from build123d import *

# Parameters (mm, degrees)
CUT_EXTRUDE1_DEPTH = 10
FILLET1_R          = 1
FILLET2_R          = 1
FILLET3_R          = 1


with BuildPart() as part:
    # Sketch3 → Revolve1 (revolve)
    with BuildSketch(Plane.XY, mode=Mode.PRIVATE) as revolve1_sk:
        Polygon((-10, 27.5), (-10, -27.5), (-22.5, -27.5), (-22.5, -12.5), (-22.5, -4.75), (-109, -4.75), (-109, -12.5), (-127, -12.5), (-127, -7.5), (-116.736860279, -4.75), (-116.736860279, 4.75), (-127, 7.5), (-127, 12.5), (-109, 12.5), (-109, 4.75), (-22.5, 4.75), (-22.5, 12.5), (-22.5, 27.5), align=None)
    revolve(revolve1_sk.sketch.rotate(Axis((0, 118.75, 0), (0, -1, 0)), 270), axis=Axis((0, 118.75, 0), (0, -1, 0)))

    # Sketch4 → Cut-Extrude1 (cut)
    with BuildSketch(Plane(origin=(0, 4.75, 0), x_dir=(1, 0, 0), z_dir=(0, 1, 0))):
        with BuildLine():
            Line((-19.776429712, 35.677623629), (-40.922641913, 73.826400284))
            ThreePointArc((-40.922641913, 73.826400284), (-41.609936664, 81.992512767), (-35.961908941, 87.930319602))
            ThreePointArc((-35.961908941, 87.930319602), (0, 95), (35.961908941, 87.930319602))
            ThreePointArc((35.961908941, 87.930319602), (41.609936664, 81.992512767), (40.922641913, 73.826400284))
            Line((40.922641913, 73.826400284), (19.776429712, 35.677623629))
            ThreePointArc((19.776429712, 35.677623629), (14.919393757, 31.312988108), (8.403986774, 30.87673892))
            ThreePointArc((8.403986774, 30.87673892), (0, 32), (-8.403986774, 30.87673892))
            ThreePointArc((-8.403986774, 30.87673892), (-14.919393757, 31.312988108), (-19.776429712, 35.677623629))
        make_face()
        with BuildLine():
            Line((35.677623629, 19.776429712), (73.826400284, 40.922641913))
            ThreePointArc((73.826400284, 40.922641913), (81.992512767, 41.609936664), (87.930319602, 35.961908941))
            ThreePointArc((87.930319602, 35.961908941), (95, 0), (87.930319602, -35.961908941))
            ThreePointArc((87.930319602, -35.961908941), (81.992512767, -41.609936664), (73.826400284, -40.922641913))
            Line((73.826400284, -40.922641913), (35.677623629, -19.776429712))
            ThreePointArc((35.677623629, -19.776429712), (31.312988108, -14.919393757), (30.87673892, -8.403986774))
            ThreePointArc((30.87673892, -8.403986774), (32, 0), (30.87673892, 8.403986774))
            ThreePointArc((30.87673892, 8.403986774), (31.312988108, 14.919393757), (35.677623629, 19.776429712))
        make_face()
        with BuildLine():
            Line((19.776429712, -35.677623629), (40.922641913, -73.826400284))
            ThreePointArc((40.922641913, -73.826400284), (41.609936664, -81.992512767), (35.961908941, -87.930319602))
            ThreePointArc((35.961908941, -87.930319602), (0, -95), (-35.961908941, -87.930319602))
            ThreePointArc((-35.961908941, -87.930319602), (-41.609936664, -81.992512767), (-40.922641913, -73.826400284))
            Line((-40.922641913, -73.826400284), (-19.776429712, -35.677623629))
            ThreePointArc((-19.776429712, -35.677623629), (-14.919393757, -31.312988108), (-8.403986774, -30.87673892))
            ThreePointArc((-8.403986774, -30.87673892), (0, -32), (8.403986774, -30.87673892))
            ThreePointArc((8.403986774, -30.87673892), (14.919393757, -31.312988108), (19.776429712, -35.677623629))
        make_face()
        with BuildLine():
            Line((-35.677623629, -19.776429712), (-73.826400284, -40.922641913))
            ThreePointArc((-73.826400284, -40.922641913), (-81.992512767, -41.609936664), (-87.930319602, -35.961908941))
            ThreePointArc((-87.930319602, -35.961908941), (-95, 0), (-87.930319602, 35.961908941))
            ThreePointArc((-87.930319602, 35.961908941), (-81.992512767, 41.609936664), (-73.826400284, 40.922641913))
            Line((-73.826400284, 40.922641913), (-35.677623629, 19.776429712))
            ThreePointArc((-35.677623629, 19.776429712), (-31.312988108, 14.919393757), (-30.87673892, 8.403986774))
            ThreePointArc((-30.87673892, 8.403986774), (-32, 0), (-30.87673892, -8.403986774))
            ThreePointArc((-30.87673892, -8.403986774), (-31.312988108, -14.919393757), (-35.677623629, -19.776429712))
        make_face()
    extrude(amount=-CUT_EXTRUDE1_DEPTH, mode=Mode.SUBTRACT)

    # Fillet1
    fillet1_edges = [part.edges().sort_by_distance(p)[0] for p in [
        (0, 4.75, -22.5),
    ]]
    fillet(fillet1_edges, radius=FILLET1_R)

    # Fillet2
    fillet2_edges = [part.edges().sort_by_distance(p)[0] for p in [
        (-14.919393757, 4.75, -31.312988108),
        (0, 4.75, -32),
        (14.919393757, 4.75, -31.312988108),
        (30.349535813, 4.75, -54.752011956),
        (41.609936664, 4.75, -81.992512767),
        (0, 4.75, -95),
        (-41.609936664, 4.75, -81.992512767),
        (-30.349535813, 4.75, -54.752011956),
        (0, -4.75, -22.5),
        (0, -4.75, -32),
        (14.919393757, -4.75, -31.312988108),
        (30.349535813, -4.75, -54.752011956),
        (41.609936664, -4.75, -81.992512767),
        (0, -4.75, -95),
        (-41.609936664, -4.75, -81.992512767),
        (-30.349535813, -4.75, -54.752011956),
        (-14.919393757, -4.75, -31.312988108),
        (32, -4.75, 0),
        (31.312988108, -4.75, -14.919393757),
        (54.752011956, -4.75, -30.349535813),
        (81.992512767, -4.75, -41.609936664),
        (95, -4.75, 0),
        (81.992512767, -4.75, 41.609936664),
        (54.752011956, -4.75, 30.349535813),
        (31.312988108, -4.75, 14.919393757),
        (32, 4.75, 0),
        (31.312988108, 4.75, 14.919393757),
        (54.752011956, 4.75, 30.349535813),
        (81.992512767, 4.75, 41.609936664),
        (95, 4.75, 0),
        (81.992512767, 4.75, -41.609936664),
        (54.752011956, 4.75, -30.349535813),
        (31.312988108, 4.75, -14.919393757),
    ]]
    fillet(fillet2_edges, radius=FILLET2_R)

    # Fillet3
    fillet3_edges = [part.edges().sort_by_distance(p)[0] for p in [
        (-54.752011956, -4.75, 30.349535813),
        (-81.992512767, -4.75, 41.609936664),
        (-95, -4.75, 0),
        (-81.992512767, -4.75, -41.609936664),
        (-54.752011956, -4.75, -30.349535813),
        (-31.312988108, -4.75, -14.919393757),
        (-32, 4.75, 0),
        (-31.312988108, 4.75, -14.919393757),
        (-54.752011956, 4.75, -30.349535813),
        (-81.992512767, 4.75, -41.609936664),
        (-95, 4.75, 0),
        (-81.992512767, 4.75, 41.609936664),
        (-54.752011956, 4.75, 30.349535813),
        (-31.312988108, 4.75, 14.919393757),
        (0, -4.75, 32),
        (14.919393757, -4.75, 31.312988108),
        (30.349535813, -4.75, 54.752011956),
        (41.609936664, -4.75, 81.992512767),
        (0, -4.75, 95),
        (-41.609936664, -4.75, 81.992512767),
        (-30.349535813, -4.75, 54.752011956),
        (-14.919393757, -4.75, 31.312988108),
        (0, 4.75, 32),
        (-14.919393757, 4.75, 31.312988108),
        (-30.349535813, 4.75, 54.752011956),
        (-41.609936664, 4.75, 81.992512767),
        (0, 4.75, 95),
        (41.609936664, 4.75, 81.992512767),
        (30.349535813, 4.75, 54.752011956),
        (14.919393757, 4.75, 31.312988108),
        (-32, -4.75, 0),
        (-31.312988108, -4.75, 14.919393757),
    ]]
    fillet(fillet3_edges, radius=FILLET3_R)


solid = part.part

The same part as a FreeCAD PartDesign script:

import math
import FreeCAD as App
import Part
import Sketcher
from FreeCAD import Vector
Q = App.Units.Quantity


def edges_at(feature, points):
    """Names of the edges that pass closest to the given points."""
    edges = feature.Shape.Edges
    near = lambda p: min(range(len(edges)), key=lambda i: edges[i].distToShape(Part.Vertex(*p))[0])
    return sorted({f"Edge{near(p) + 1}" for p in points})


def add_polygon(sketch, points):
    """Adds a closed chain of lines whose ends are joined by coincident constraints."""
    first, n = sketch.GeometryCount, len(points)
    for a, b in zip(points, points[1:] + points[:1]):
        sketch.addGeometry(Part.LineSegment(App.Vector(*a, 0), App.Vector(*b, 0)), False)
    for i in range(n):
        sketch.addConstraint(Sketcher.Constraint("Coincident", first + i, 2, first + (i + 1) % n, 1))

doc = App.newDocument("Part")
params = doc.addObject("Spreadsheet::Sheet", "Params")
for row, (alias, value) in enumerate([
    ("sketch1_width", "18 mm"),
    ("sketch1_height", "55 mm"),
    ("sketch1_height2", "5 mm"),
    ("sketch1_width2", "12.5 mm"),
    ("sketch1_width3", "86.5 mm"),
    ("revolution_angle", "360 deg"),
    ("sketch2_radius", "10 mm"),
    ("sketch2_radius2", "32 mm"),
    ("sketch2_radius3", "95 mm"),
    ("pocket1_length", "10 mm"),
    ("fillet_radius", "1 mm"),
    ("fillet2_radius", "1 mm"),
    ("fillet3_radius", "1 mm"),
], start=1):
    params.set(f"A{row}", alias)
    params.set(f"B{row}", "=" + value)
    params.setAlias(f"B{row}", alias)

body = doc.addObject("PartDesign::Body", "Body")

sketch1 = doc.addObject("Sketcher::SketchObject", "Sketch")
body.addObject(sketch1)
sketch1.AttachmentSupport = (doc.XY_Plane, [""])
sketch1.MapMode = "FlatFace"
add_polygon(sketch1, [(-10, -27.5), (-10, 27.5), (-22.5, 27.5), (-22.5, 4.75), (-109, 4.75), (-109, 12.5), (-127, 12.5), (-127, 7.5), (-116.73686, 4.75), (-116.73686, -4.75), (-127, -7.5), (-127, -12.5), (-109, -12.5), (-109, -4.75), (-22.5, -4.75), (-22.5, -27.5)])
sketch1.addConstraint(Sketcher.Constraint("Vertical", 0))
sketch1.addConstraint(Sketcher.Constraint("Horizontal", 1))
sketch1.addConstraint(Sketcher.Constraint("Vertical", 2))
sketch1.addConstraint(Sketcher.Constraint("Horizontal", 3))
sketch1.addConstraint(Sketcher.Constraint("Vertical", 4))
sketch1.addConstraint(Sketcher.Constraint("Horizontal", 5))
sketch1.addConstraint(Sketcher.Constraint("Vertical", 6))
sketch1.addConstraint(Sketcher.Constraint("Vertical", 8))
sketch1.addConstraint(Sketcher.Constraint("Vertical", 10))
sketch1.addConstraint(Sketcher.Constraint("Horizontal", 11))
sketch1.addConstraint(Sketcher.Constraint("Vertical", 12))
sketch1.addConstraint(Sketcher.Constraint("Horizontal", 13))
sketch1.addConstraint(Sketcher.Constraint("Vertical", 14))
sketch1.addConstraint(Sketcher.Constraint("Horizontal", 15))
sketch1.addConstraint(Sketcher.Constraint("Symmetric", 6, 2, 9, 2, -1))
sketch1.addConstraint(Sketcher.Constraint("Symmetric", 4, 2, 11, 2, -1))
sketch1.addConstraint(Sketcher.Constraint("Symmetric", 2, 2, 13, 2, -1))
sketch1.addConstraint(Sketcher.Constraint("Horizontal", 3, 2, 7, 2))
sketch1.addConstraint(Sketcher.Constraint("Horizontal", 8, 2, 12, 2))
sketch1.addConstraint(Sketcher.Constraint("Equal", 2, 14))
sketch1.addConstraint(Sketcher.Constraint("DistanceX", 5, 2, 5, 1, Q("18 mm")))
sketch1.addConstraint(Sketcher.Constraint("DistanceY", 0, 1, 0, 2, Q("55 mm")))
sketch1.addConstraint(Sketcher.Constraint("DistanceY", 6, 2, 6, 1, Q("5 mm")))
sketch1.addConstraint(Sketcher.Constraint("Angle", 7, Q("-15 deg")))
sketch1.addConstraint(Sketcher.Constraint("DistanceX", 1, 2, 1, 1, Q("12.5 mm")))
sketch1.addConstraint(Sketcher.Constraint("DistanceX", 3, 2, 3, 1, Q("86.5 mm")))
sketch1.addConstraint(Sketcher.Constraint("DistanceY", 8, 2, 8, 1, Q("9.5 mm")))
sketch1.addConstraint(Sketcher.Constraint("DistanceX", 0, 2, -1, 1, Q("10 mm")))
sketch1.addConstraint(Sketcher.Constraint("DistanceY", 4, 2, 1, 2, Q("15 mm")))
sketch1.setExpression("Constraints[36]", "Params.sketch1_width")
sketch1.setExpression("Constraints[37]", "Params.sketch1_height")
sketch1.setExpression("Constraints[38]", "Params.sketch1_height2")
sketch1.setExpression("Constraints[40]", "Params.sketch1_width2")
sketch1.setExpression("Constraints[41]", "Params.sketch1_width3")
revolution = doc.addObject("PartDesign::Revolution", "Revolution")
body.addObject(revolution)
revolution.Profile = sketch1
revolution.ReferenceAxis = (sketch1, ["V_Axis"])
revolution.setExpression("Angle", "Params.revolution_angle")

sketch2 = doc.addObject("Sketcher::SketchObject", "Sketch001")
body.addObject(sketch2)
sketch2.AttachmentSupport = (doc.XZ_Plane, [""])
sketch2.MapMode = "FlatFace"
sketch2.AttachmentOffset = App.Placement(Vector(0, 0, -4.75), App.Rotation())
sketch2.addGeometry(Part.LineSegment(Vector(-40.922642, -73.8264, 0), Vector(-19.77643, -35.677624, 0)), False)
sketch2.addGeometry(Part.ArcOfCircle(Part.Circle(Vector(-11.030233, -40.52572, 0), Vector(0, 0, 1), 10), math.radians(74.774147), math.radians(151)), False)
sketch2.addGeometry(Part.ArcOfCircle(Part.Circle(Vector(0, 0, 0), Vector(0, 0, 1), 32), math.radians(-105.225853), math.radians(-74.774147)), False)
sketch2.addGeometry(Part.ArcOfCircle(Part.Circle(Vector(11.030233, -40.52572, 0), Vector(0, 0, 1), 10), math.radians(29), math.radians(105.225853)), False)
sketch2.addGeometry(Part.LineSegment(Vector(19.77643, -35.677624, 0), Vector(40.922642, -73.8264, 0)), False)
sketch2.addGeometry(Part.ArcOfCircle(Part.Circle(Vector(32.176445, -78.674496, 0), Vector(0, 0, 1), 10), math.radians(-67.756327), math.radians(29)), False)
sketch2.addGeometry(Part.ArcOfCircle(Part.Circle(Vector(0, 0, 0), Vector(0, 0, 1), 95), math.radians(-112.243673), math.radians(-67.756327)), False)
sketch2.addGeometry(Part.ArcOfCircle(Part.Circle(Vector(-32.176445, -78.674496, 0), Vector(0, 0, 1), 10), math.radians(151), math.radians(247.756327)), False)
sketch2.addGeometry(Part.LineSegment(Vector(73.8264, -40.922642, 0), Vector(35.677624, -19.77643, 0)), False)
sketch2.addGeometry(Part.ArcOfCircle(Part.Circle(Vector(40.52572, -11.030233, 0), Vector(0, 0, 1), 10), math.radians(164.774147), math.radians(241)), False)
sketch2.addGeometry(Part.ArcOfCircle(Part.Circle(Vector(0, 0, 0), Vector(0, 0, 1), 32), math.radians(-15.225853), math.radians(15.225853)), False)
sketch2.addGeometry(Part.ArcOfCircle(Part.Circle(Vector(40.52572, 11.030233, 0), Vector(0, 0, 1), 10), math.radians(119), math.radians(195.225853)), False)
sketch2.addGeometry(Part.LineSegment(Vector(35.677624, 19.77643, 0), Vector(73.8264, 40.922642, 0)), False)
sketch2.addGeometry(Part.ArcOfCircle(Part.Circle(Vector(78.674496, 32.176445, 0), Vector(0, 0, 1), 10), math.radians(22.243673), math.radians(119)), False)
sketch2.addGeometry(Part.ArcOfCircle(Part.Circle(Vector(0, 0, 0), Vector(0, 0, 1), 95), math.radians(-22.243673), math.radians(22.243673)), False)
sketch2.addGeometry(Part.ArcOfCircle(Part.Circle(Vector(78.674496, -32.176445, 0), Vector(0, 0, 1), 10), math.radians(-119), math.radians(-22.243673)), False)
sketch2.addGeometry(Part.LineSegment(Vector(40.922642, 73.8264, 0), Vector(19.77643, 35.677624, 0)), False)
sketch2.addGeometry(Part.ArcOfCircle(Part.Circle(Vector(11.030233, 40.52572, 0), Vector(0, 0, 1), 10), math.radians(-105.225853), math.radians(-29)), False)
sketch2.addGeometry(Part.ArcOfCircle(Part.Circle(Vector(0, 0, 0), Vector(0, 0, 1), 32), math.radians(74.774147), math.radians(105.225853)), False)
sketch2.addGeometry(Part.ArcOfCircle(Part.Circle(Vector(-11.030233, 40.52572, 0), Vector(0, 0, 1), 10), math.radians(-151), math.radians(-74.774147)), False)
sketch2.addGeometry(Part.LineSegment(Vector(-19.77643, 35.677624, 0), Vector(-40.922642, 73.8264, 0)), False)
sketch2.addGeometry(Part.ArcOfCircle(Part.Circle(Vector(-32.176445, 78.674496, 0), Vector(0, 0, 1), 10), math.radians(112.243673), math.radians(209)), False)
sketch2.addGeometry(Part.ArcOfCircle(Part.Circle(Vector(0, 0, 0), Vector(0, 0, 1), 95), math.radians(67.756327), math.radians(112.243673)), False)
sketch2.addGeometry(Part.ArcOfCircle(Part.Circle(Vector(32.176445, 78.674496, 0), Vector(0, 0, 1), 10), math.radians(-29), math.radians(67.756327)), False)
sketch2.addGeometry(Part.LineSegment(Vector(-73.8264, 40.922642, 0), Vector(-35.677624, 19.77643, 0)), False)
sketch2.addGeometry(Part.ArcOfCircle(Part.Circle(Vector(-40.52572, 11.030233, 0), Vector(0, 0, 1), 10), math.radians(-15.225853), math.radians(61)), False)
sketch2.addGeometry(Part.ArcOfCircle(Part.Circle(Vector(0, 0, 0), Vector(0, 0, 1), 32), math.radians(164.774147), math.radians(195.225853)), False)
sketch2.addGeometry(Part.ArcOfCircle(Part.Circle(Vector(-40.52572, -11.030233, 0), Vector(0, 0, 1), 10), math.radians(-61), math.radians(15.225853)), False)
sketch2.addGeometry(Part.LineSegment(Vector(-35.677624, -19.77643, 0), Vector(-73.8264, -40.922642, 0)), False)
sketch2.addGeometry(Part.ArcOfCircle(Part.Circle(Vector(-78.674496, -32.176445, 0), Vector(0, 0, 1), 10), math.radians(-157.756327), math.radians(-61)), False)
sketch2.addGeometry(Part.ArcOfCircle(Part.Circle(Vector(0, 0, 0), Vector(0, 0, 1), 95), math.radians(157.756327), math.radians(202.243673)), False)
sketch2.addGeometry(Part.ArcOfCircle(Part.Circle(Vector(-78.674496, 32.176445, 0), Vector(0, 0, 1), 10), math.radians(61), math.radians(157.756327)), False)
sketch2.addConstraint(Sketcher.Constraint("Tangent", 0, 2, 1, 2))
sketch2.addConstraint(Sketcher.Constraint("Tangent", 1, 1, 2, 1))
sketch2.addConstraint(Sketcher.Constraint("Tangent", 2, 2, 3, 2))
sketch2.addConstraint(Sketcher.Constraint("Tangent", 3, 1, 4, 1))
sketch2.addConstraint(Sketcher.Constraint("Tangent", 4, 2, 5, 2))
sketch2.addConstraint(Sketcher.Constraint("Tangent", 5, 1, 6, 2))
sketch2.addConstraint(Sketcher.Constraint("Tangent", 6, 1, 7, 2))
sketch2.addConstraint(Sketcher.Constraint("Tangent", 7, 1, 0, 1))
sketch2.addConstraint(Sketcher.Constraint("Tangent", 8, 2, 9, 2))
sketch2.addConstraint(Sketcher.Constraint("Tangent", 9, 1, 10, 1))
sketch2.addConstraint(Sketcher.Constraint("Tangent", 10, 2, 11, 2))
sketch2.addConstraint(Sketcher.Constraint("Tangent", 11, 1, 12, 1))
sketch2.addConstraint(Sketcher.Constraint("Tangent", 12, 2, 13, 2))
sketch2.addConstraint(Sketcher.Constraint("Tangent", 13, 1, 14, 2))
sketch2.addConstraint(Sketcher.Constraint("Tangent", 14, 1, 15, 2))
sketch2.addConstraint(Sketcher.Constraint("Tangent", 15, 1, 8, 1))
sketch2.addConstraint(Sketcher.Constraint("Tangent", 16, 2, 17, 2))
sketch2.addConstraint(Sketcher.Constraint("Tangent", 17, 1, 18, 1))
sketch2.addConstraint(Sketcher.Constraint("Tangent", 18, 2, 19, 2))
sketch2.addConstraint(Sketcher.Constraint("Tangent", 19, 1, 20, 1))
sketch2.addConstraint(Sketcher.Constraint("Tangent", 20, 2, 21, 2))
sketch2.addConstraint(Sketcher.Constraint("Tangent", 21, 1, 22, 2))
sketch2.addConstraint(Sketcher.Constraint("Tangent", 22, 1, 23, 2))
sketch2.addConstraint(Sketcher.Constraint("Tangent", 23, 1, 16, 1))
sketch2.addConstraint(Sketcher.Constraint("Tangent", 24, 2, 25, 2))
sketch2.addConstraint(Sketcher.Constraint("Tangent", 25, 1, 26, 1))
sketch2.addConstraint(Sketcher.Constraint("Tangent", 26, 2, 27, 2))
sketch2.addConstraint(Sketcher.Constraint("Tangent", 27, 1, 28, 1))
sketch2.addConstraint(Sketcher.Constraint("Tangent", 28, 2, 29, 2))
sketch2.addConstraint(Sketcher.Constraint("Tangent", 29, 1, 30, 2))
sketch2.addConstraint(Sketcher.Constraint("Tangent", 30, 1, 31, 2))
sketch2.addConstraint(Sketcher.Constraint("Tangent", 31, 1, 24, 1))
sketch2.addConstraint(Sketcher.Constraint("Coincident", 2, 3, -1, 1))
sketch2.addConstraint(Sketcher.Constraint("Coincident", 6, 3, -1, 1))
sketch2.addConstraint(Sketcher.Constraint("Coincident", 10, 3, -1, 1))
sketch2.addConstraint(Sketcher.Constraint("Coincident", 14, 3, -1, 1))
sketch2.addConstraint(Sketcher.Constraint("Coincident", 18, 3, -1, 1))
sketch2.addConstraint(Sketcher.Constraint("Coincident", 22, 3, -1, 1))
sketch2.addConstraint(Sketcher.Constraint("Coincident", 26, 3, -1, 1))
sketch2.addConstraint(Sketcher.Constraint("Coincident", 30, 3, -1, 1))
sketch2.addConstraint(Sketcher.Constraint("Equal", 1, 3))
sketch2.addConstraint(Sketcher.Constraint("Equal", 3, 5))
sketch2.addConstraint(Sketcher.Constraint("Equal", 5, 7))
sketch2.addConstraint(Sketcher.Constraint("Equal", 7, 9))
sketch2.addConstraint(Sketcher.Constraint("Equal", 2, 10))
sketch2.addConstraint(Sketcher.Constraint("Equal", 9, 11))
sketch2.addConstraint(Sketcher.Constraint("Equal", 11, 13))
sketch2.addConstraint(Sketcher.Constraint("Equal", 6, 14))
sketch2.addConstraint(Sketcher.Constraint("Equal", 13, 15))
sketch2.addConstraint(Sketcher.Constraint("Equal", 15, 17))
sketch2.addConstraint(Sketcher.Constraint("Equal", 10, 18))
sketch2.addConstraint(Sketcher.Constraint("Equal", 17, 19))
sketch2.addConstraint(Sketcher.Constraint("Equal", 19, 21))
sketch2.addConstraint(Sketcher.Constraint("Equal", 14, 22))
sketch2.addConstraint(Sketcher.Constraint("Equal", 21, 23))
sketch2.addConstraint(Sketcher.Constraint("Equal", 23, 25))
sketch2.addConstraint(Sketcher.Constraint("Equal", 18, 26))
sketch2.addConstraint(Sketcher.Constraint("Equal", 25, 27))
sketch2.addConstraint(Sketcher.Constraint("Equal", 27, 29))
sketch2.addConstraint(Sketcher.Constraint("Equal", 22, 30))
sketch2.addConstraint(Sketcher.Constraint("Equal", 29, 31))
sketch2.addConstraint(Sketcher.Constraint("Symmetric", 0, 2, 16, 2, -1, 1))
sketch2.addConstraint(Sketcher.Constraint("Symmetric", 3, 1, 19, 1, -1, 1))
sketch2.addConstraint(Sketcher.Constraint("Symmetric", 8, 2, 24, 2, -1, 1))
sketch2.addConstraint(Sketcher.Constraint("Symmetric", 11, 1, 27, 1, -1, 1))
sketch2.addConstraint(Sketcher.Constraint("Symmetric", 0, 2, 3, 1, -2))
sketch2.addConstraint(Sketcher.Constraint("Symmetric", 11, 1, 24, 2, -2))
sketch2.addConstraint(Sketcher.Constraint("Perpendicular", 0, 8))
sketch2.addConstraint(Sketcher.Constraint("Equal", 4, 8))
sketch2.addConstraint(Sketcher.Constraint("Radius", 1, Q("10 mm")))
sketch2.addConstraint(Sketcher.Constraint("Radius", 2, Q("32 mm")))
sketch2.addConstraint(Sketcher.Constraint("Radius", 6, Q("95 mm")))
sketch2.addConstraint(Sketcher.Constraint("Angle", 0, Q("61 deg")))
sketch2.addConstraint(Sketcher.Constraint("DistanceY", 4, 2, -1, 1, Q("73.8264 mm")))
sketch2.setExpression("Constraints[69]", "Params.sketch2_radius")
sketch2.setExpression("Constraints[70]", "Params.sketch2_radius2")
sketch2.setExpression("Constraints[71]", "Params.sketch2_radius3")
pocket1 = doc.addObject("PartDesign::Pocket", "Pocket")
body.addObject(pocket1)
pocket1.Profile = sketch2
pocket1.setExpression("Length", "Params.pocket1_length")
pocket1.Reversed = True
doc.recompute()

fillet = doc.addObject("PartDesign::Fillet", "Fillet")
body.addObject(fillet)
fillet.Base = (pocket1, edges_at(pocket1, [(0, 4.75, -22.5)]))
fillet.setExpression("Radius", "Params.fillet_radius")
doc.recompute()

fillet2 = doc.addObject("PartDesign::Fillet", "Fillet001")
body.addObject(fillet2)
fillet2.Base = (fillet, edges_at(fillet, [
    (-14.919, 4.75, -31.313),
    (0, 4.75, -32),
    (14.919, 4.75, -31.313),
    (30.35, 4.75, -54.752),
    (41.61, 4.75, -81.993),
    (0, 4.75, -95),
    (-41.61, 4.75, -81.993),
    (-30.35, 4.75, -54.752),
    (0, -4.75, -22.5),
    (0, -4.75, -32),
    (14.919, -4.75, -31.313),
    (30.35, -4.75, -54.752),
    (41.61, -4.75, -81.993),
    (0, -4.75, -95),
    (-41.61, -4.75, -81.993),
    (-30.35, -4.75, -54.752),
    (-14.919, -4.75, -31.313),
    (32, -4.75, 0),
    (31.313, -4.75, -14.919),
    (54.752, -4.75, -30.35),
    (81.993, -4.75, -41.61),
    (95, -4.75, 0),
    (81.993, -4.75, 41.61),
    (54.752, -4.75, 30.35),
    (31.313, -4.75, 14.919),
    (32, 4.75, 0),
    (31.313, 4.75, 14.919),
    (54.752, 4.75, 30.35),
    (81.993, 4.75, 41.61),
    (95, 4.75, 0),
    (81.993, 4.75, -41.61),
    (54.752, 4.75, -30.35),
    (31.313, 4.75, -14.919),
]))
fillet2.setExpression("Radius", "Params.fillet2_radius")
doc.recompute()

fillet3 = doc.addObject("PartDesign::Fillet", "Fillet002")
body.addObject(fillet3)
fillet3.Base = (fillet2, edges_at(fillet2, [
    (-54.752, -4.75, 30.35),
    (-81.993, -4.75, 41.61),
    (-95, -4.75, 0),
    (-81.993, -4.75, -41.61),
    (-54.752, -4.75, -30.35),
    (-31.313, -4.75, -14.919),
    (-32, 4.75, 0),
    (-31.313, 4.75, -14.919),
    (-54.752, 4.75, -30.35),
    (-81.993, 4.75, -41.61),
    (-95, 4.75, 0),
    (-81.993, 4.75, 41.61),
    (-54.752, 4.75, 30.35),
    (-31.313, 4.75, 14.919),
    (0, -4.75, 32),
    (14.919, -4.75, 31.313),
    (30.35, -4.75, 54.752),
    (41.61, -4.75, 81.993),
    (0, -4.75, 95),
    (-41.61, -4.75, 81.993),
    (-30.35, -4.75, 54.752),
    (-14.919, -4.75, 31.313),
    (0, 4.75, 32),
    (-14.919, 4.75, 31.313),
    (-30.35, 4.75, 54.752),
    (-41.61, 4.75, 81.993),
    (0, 4.75, 95),
    (41.61, 4.75, 81.993),
    (30.35, 4.75, 54.752),
    (14.919, 4.75, 31.313),
    (-32, -4.75, 0),
    (-31.313, -4.75, 14.919),
]))
fillet3.setExpression("Radius", "Params.fillet3_radius")

doc.recompute()
